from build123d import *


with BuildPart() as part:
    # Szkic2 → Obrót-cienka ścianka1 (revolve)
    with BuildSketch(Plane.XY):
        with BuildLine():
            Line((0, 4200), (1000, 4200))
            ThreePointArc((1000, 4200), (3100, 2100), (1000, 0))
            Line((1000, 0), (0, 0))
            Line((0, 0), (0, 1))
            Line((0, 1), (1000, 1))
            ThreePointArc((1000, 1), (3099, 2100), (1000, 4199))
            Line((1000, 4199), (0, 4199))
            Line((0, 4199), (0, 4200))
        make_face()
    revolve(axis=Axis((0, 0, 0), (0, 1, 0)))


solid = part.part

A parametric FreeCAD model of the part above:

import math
import FreeCAD as App
import Part
import Sketcher
Q = App.Units.Quantity

doc = App.newDocument("Part")
body = doc.addObject("PartDesign::Body", "Body")

# Sketch on XY plane
sketch1 = body.newObject("Sketcher::SketchObject", "Sketch")
sketch1.AttachmentSupport = (doc.getObject("XY_Plane"), [""])
sketch1.MapMode = "FlatFace"
sketch1.addGeometry([
    Part.LineSegment(App.Vector(1000, 4200, 0), App.Vector(0, 4200, 0)),  # 0
    Part.LineSegment(App.Vector(0, 4200, 0), App.Vector(0, 4199, 0)),  # 1
    Part.LineSegment(App.Vector(0, 4199, 0), App.Vector(1000, 4199, 0)),  # 2
    Part.ArcOfCircle(Part.Circle(App.Vector(1000, 2100, 0), App.Vector(0, 0, 1), 2099), math.radians(-90), math.radians(90)),  # 3
    Part.LineSegment(App.Vector(1000, 1, 0), App.Vector(0, 1, 0)),  # 4
    Part.LineSegment(App.Vector(0, 1, 0), App.Vector(0, 0, 0)),  # 5
    Part.LineSegment(App.Vector(0, 0, 0), App.Vector(1000, 0, 0)),  # 6
    Part.ArcOfCircle(Part.Circle(App.Vector(1000, 2100, 0), App.Vector(0, 0, 1), 2100), math.radians(-90), math.radians(90)),  # 7
], False)
sketch1.addConstraint([
    Sketcher.Constraint("Coincident", 0, 2, 1, 1),
    Sketcher.Constraint("Coincident", 1, 2, 2, 1),
    Sketcher.Constraint("Coincident", 2, 2, 3, 2),
    Sketcher.Constraint("Coincident", 3, 1, 4, 1),
    Sketcher.Constraint("Coincident", 4, 2, 5, 1),
    Sketcher.Constraint("Coincident", 5, 2, 6, 1),
    Sketcher.Constraint("Coincident", 6, 2, 7, 1),
    Sketcher.Constraint("Coincident", 7, 2, 0, 1),
    Sketcher.Constraint("Horizontal", 0),
    Sketcher.Constraint("Vertical", 1),
    Sketcher.Constraint("Horizontal", 2),
    Sketcher.Constraint("Horizontal", 4),
    Sketcher.Constraint("Vertical", 5),
    Sketcher.Constraint("Horizontal", 6),
    Sketcher.Constraint("Coincident", 5, 2, -1, 1),
    Sketcher.Constraint("Coincident", 7, 3, 3, 3),
    Sketcher.Constraint("PointOnObject", 0, 2, -2),
    Sketcher.Constraint("Vertical", 7, 3, 2, 2),
    Sketcher.Constraint("Equal", 0, 2),
    Sketcher.Constraint("Equal", 2, 4),
    Sketcher.Constraint("Equal", 4, 6),
    Sketcher.Constraint("Radius", 3, Q("2099 mm")),
    Sketcher.Constraint("Radius", 7, Q("2100 mm")),
    Sketcher.Constraint("DistanceX", 0, 2, 0, 1, Q("1000 mm")),
])
revolution = body.newObject("PartDesign::Revolution", "Revolution")
revolution.Profile = sketch1
revolution.ReferenceAxis = (sketch1, ["V_Axis"])
revolution.Angle = 360

doc.recompute()
